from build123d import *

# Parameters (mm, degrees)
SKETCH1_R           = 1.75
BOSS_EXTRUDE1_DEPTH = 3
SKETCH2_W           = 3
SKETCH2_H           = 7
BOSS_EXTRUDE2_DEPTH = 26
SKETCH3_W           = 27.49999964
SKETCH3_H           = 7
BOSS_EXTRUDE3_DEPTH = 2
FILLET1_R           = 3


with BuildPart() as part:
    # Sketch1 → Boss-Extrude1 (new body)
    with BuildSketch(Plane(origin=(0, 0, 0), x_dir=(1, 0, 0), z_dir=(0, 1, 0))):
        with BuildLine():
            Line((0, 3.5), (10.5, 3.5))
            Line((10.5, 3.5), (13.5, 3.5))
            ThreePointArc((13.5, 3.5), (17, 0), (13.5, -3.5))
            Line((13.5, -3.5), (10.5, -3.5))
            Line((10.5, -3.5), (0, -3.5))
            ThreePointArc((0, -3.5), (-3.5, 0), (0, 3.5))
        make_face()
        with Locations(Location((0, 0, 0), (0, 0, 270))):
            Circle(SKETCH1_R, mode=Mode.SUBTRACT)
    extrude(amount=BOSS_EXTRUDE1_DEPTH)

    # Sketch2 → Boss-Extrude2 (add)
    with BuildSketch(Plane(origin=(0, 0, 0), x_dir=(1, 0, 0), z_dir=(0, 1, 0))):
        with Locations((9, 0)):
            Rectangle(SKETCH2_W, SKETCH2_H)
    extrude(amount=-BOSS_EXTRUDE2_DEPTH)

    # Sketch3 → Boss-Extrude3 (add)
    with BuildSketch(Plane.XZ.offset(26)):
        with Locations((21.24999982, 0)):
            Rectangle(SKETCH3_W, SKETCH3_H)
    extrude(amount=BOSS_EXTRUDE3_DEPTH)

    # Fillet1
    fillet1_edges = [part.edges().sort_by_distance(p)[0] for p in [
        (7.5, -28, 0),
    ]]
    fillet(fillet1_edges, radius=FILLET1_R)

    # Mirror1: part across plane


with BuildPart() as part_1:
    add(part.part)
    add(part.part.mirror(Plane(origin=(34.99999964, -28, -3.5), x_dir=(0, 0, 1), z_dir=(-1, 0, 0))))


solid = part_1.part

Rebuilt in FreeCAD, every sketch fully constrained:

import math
import FreeCAD as App
import Part
import Sketcher

V = App.Vector


def edges_at(feature, points):
    """Names of the edges that pass closest to the given points."""
    edges = feature.Shape.Edges
    near = lambda p: min(range(len(edges)), key=lambda i: edges[i].distToShape(Part.Vertex(*p))[0])
    return sorted({f"Edge{near(p) + 1}" for p in points})

doc = App.newDocument("Part")
body = doc.addObject("PartDesign::Body", "Body")

# Sketch on XZ plane
sketch1 = body.newObject("Sketcher::SketchObject", "Sketch")
sketch1.AttachmentSupport = (doc.getObject("XZ_Plane"), [""])
sketch1.MapMode = "FlatFace"
sketch1.addGeometry(Part.LineSegment(V(13.5, -3.5, 0), V(0, -3.5, 0)), False)
sketch1.addGeometry(Part.ArcOfCircle(Part.Circle(V(0, 0, 0), V(0, 0, 1), 3.5), math.radians(90), math.radians(270)), False)
sketch1.addGeometry(Part.LineSegment(V(0, 3.5, 0), V(13.5, 3.5, 0)), False)
sketch1.addGeometry(Part.ArcOfCircle(Part.Circle(V(13.5, 0, 0), V(0, 0, 1), 3.5), math.radians(-90), math.radians(90)), False)
sketch1.addGeometry(Part.Circle(V(0, 0, 0), V(0, 0, 1), 1.75), False)
sketch1.addConstraint(Sketcher.Constraint("Tangent", 0, 2, 1, 2))
sketch1.addConstraint(Sketcher.Constraint("Tangent", 1, 1, 2, 1))
sketch1.addConstraint(Sketcher.Constraint("Tangent", 2, 2, 3, 2))
sketch1.addConstraint(Sketcher.Constraint("Tangent", 3, 1, 0, 1))
sketch1.addConstraint(Sketcher.Constraint("Horizontal", 0))
sketch1.addConstraint(Sketcher.Constraint("Horizontal", 2))
sketch1.addConstraint(Sketcher.Constraint("Coincident", 1, 3, -1, 1))
sketch1.addConstraint(Sketcher.Constraint("Coincident", 4, 3, -1, 1))
sketch1.addConstraint(Sketcher.Constraint("Diameter", 4, 3.5))
sketch1.addConstraint(Sketcher.Constraint("Radius", 1, 3.5))
sketch1.addConstraint(Sketcher.Constraint("DistanceX", 0, 2, 0, 1, 13.5))
pad1 = body.newObject("PartDesign::Pad", "Pad")
pad1.Profile = sketch1
pad1.Length = 3
pad1.Reversed = True

# Sketch on XZ plane
sketch2 = body.newObject("Sketcher::SketchObject", "Sketch001")
sketch2.AttachmentSupport = (doc.getObject("XZ_Plane"), [""])
sketch2.MapMode = "FlatFace"
sketch2.addGeometry(Part.LineSegment(V(7.5, -3.5, 0), V(7.5, 3.5, 0)), False)
sketch2.addGeometry(Part.LineSegment(V(7.5, 3.5, 0), V(10.5, 3.5, 0)), False)
sketch2.addGeometry(Part.LineSegment(V(10.5, 3.5, 0), V(10.5, -3.5, 0)), False)
sketch2.addGeometry(Part.LineSegment(V(10.5, -3.5, 0), V(7.5, -3.5, 0)), False)
sketch2.addConstraint(Sketcher.Constraint("Coincident", 0, 2, 1, 1))
sketch2.addConstraint(Sketcher.Constraint("Coincident", 1, 2, 2, 1))
sketch2.addConstraint(Sketcher.Constraint("Coincident", 2, 2, 3, 1))
sketch2.addConstraint(Sketcher.Constraint("Coincident", 3, 2, 0, 1))
sketch2.addConstraint(Sketcher.Constraint("Vertical", 0))
sketch2.addConstraint(Sketcher.Constraint("Horizontal", 1))
sketch2.addConstraint(Sketcher.Constraint("Vertical", 2))
sketch2.addConstraint(Sketcher.Constraint("Horizontal", 3))
sketch2.addConstraint(Sketcher.Constraint("DistanceX", 1, 1, 1, 2, 3.0))
sketch2.addConstraint(Sketcher.Constraint("DistanceY", 0, 1, 0, 2, 7.0))
sketch2.addConstraint(Sketcher.Constraint("DistanceX", -1, 1, 0, 2, 7.5))
sketch2.addConstraint(Sketcher.Constraint("DistanceY", -1, 1, 0, 2, 3.5))
pad2 = body.newObject("PartDesign::Pad", "Pad001")
pad2.Profile = sketch2
pad2.Length = 26

# Sketch on XZ plane
sketch3 = body.newObject("Sketcher::SketchObject", "Sketch002")
sketch3.AttachmentSupport = (doc.getObject("XZ_Plane"), [""])
sketch3.MapMode = "FlatFace"
sketch3.AttachmentOffset = App.Placement(V(0, 0, 26), App.Rotation())
sketch3.addGeometry(Part.LineSegment(V(7.5, 3.5, 0), V(7.5, -3.5, 0)), False)
sketch3.addGeometry(Part.LineSegment(V(7.5, -3.5, 0), V(35, -3.5, 0)), False)
sketch3.addGeometry(Part.LineSegment(V(35, -3.5, 0), V(35, 3.5, 0)), False)
sketch3.addGeometry(Part.LineSegment(V(35, 3.5, 0), V(7.5, 3.5, 0)), False)
sketch3.addConstraint(Sketcher.Constraint("Coincident", 0, 2, 1, 1))
sketch3.addConstraint(Sketcher.Constraint("Coincident", 1, 2, 2, 1))
sketch3.addConstraint(Sketcher.Constraint("Coincident", 2, 2, 3, 1))
sketch3.addConstraint(Sketcher.Constraint("Coincident", 3, 2, 0, 1))
sketch3.addConstraint(Sketcher.Constraint("Vertical", 0))
sketch3.addConstraint(Sketcher.Constraint("Horizontal", 1))
sketch3.addConstraint(Sketcher.Constraint("Vertical", 2))
sketch3.addConstraint(Sketcher.Constraint("Horizontal", 3))
sketch3.addConstraint(Sketcher.Constraint("DistanceY", 0, 2, 0, 1, 7.0))
sketch3.addConstraint(Sketcher.Constraint("DistanceX", 1, 1, 1, 2, 27.5))
sketch3.addConstraint(Sketcher.Constraint("DistanceX", -1, 1, 1, 2, 35.0))
sketch3.addConstraint(Sketcher.Constraint("DistanceY", 0, 2, -1, 1, 3.5))
pad3 = body.newObject("PartDesign::Pad", "Pad002")
pad3.Profile = sketch3
pad3.Length = 2
doc.recompute()

fillet = body.newObject("PartDesign::Fillet", "Fillet")
fillet.Base = (pad3, edges_at(pad3, [(7.5, -28, 0)]))
fillet.Radius = 3
body2 = doc.addObject("PartDesign::Body", "Body001")
doc.recompute()

body2.BaseFeature = body
doc.recompute()

mirroring = doc.addObject("Part::Mirroring", "Mirroring")
mirroring.Source = body
mirroring.Base = V(35, -28, -3.5)
mirroring.Normal = V(-1, 0, 0)
body3 = doc.addObject("PartDesign::Body", "Body002")
body3.BaseFeature = mirroring
boolean = body2.newObject("PartDesign::Boolean", "Boolean")
boolean.Type = "Fuse"
boolean.addObjects([body3])
doc.recompute()
mirroring.Visibility = False

doc.recompute()
